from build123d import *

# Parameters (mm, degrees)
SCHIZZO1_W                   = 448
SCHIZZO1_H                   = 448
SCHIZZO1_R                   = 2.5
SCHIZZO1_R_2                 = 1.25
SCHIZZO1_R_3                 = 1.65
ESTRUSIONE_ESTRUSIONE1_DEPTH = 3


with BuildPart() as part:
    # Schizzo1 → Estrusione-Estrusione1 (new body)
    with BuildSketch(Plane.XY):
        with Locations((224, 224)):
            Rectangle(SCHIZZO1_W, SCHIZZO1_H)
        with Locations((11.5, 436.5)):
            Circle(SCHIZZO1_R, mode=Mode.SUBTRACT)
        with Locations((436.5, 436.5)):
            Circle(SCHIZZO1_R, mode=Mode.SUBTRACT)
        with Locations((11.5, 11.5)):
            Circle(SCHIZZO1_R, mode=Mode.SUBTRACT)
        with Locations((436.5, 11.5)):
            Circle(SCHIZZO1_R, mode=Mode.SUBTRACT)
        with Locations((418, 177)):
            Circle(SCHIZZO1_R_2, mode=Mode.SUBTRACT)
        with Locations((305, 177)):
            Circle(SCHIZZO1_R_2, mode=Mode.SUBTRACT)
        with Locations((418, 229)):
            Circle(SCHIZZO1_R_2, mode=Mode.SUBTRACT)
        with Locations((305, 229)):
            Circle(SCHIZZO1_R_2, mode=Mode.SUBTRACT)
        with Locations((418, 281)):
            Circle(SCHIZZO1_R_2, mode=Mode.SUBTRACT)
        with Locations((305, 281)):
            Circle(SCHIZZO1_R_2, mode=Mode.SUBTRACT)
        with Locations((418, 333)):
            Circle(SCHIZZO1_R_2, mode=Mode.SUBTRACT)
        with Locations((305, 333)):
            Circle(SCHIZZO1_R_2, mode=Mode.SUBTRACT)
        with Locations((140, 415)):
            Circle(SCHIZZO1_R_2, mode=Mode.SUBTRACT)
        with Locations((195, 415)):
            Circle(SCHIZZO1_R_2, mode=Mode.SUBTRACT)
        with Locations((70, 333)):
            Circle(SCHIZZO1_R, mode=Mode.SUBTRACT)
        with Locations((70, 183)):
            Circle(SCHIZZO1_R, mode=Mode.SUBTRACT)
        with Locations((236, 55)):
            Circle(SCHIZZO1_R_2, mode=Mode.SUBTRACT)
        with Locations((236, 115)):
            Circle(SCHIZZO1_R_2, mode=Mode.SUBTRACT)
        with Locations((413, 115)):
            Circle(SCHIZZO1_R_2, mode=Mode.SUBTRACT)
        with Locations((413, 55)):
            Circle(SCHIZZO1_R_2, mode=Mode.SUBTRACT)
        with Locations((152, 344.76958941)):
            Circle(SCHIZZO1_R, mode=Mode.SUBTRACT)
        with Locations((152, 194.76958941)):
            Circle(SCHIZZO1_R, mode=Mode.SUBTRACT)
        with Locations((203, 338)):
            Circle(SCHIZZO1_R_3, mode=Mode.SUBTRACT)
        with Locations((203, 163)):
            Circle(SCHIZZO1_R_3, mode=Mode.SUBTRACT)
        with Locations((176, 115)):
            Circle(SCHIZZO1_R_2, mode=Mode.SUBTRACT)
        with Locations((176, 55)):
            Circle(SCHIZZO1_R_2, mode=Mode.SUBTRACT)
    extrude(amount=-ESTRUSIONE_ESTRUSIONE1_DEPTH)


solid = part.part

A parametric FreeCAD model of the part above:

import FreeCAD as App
import Part
import Sketcher

doc = App.newDocument("Part")
body = doc.addObject("PartDesign::Body", "Body")

# Sketch on XY plane
sketch1 = doc.addObject("Sketcher::SketchObject", "Sketch")
body.addObject(sketch1)
sketch1.AttachmentSupport = (doc.XY_Plane, [""])
sketch1.MapMode = "FlatFace"
sketch1.addGeometry([
    Part.LineSegment(App.Vector(0, 448, 0), App.Vector(0, 0, 0)),  # 0
    Part.LineSegment(App.Vector(0, 0, 0), App.Vector(448, 0, 0)),  # 1
    Part.LineSegment(App.Vector(448, 0, 0), App.Vector(448, 448, 0)),  # 2
    Part.LineSegment(App.Vector(448, 448, 0), App.Vector(0, 448, 0)),  # 3
    Part.Circle(App.Vector(11.5, 11.5, 0), App.Vector(0, 0, 1), 2.5),  # 4
    Part.Circle(App.Vector(176, 55, 0), App.Vector(0, 0, 1), 1.2),  # 5
    Part.Circle(App.Vector(176, 115, 0), App.Vector(0, 0, 1), 1.2),  # 6
    Part.Circle(App.Vector(70, 183, 0), App.Vector(0, 0, 1), 2.5),  # 7
    Part.Circle(App.Vector(203, 163, 0), App.Vector(0, 0, 1), 1.6),  # 8
    Part.Circle(App.Vector(152, 194.8, 0), App.Vector(0, 0, 1), 2.5),  # 9
    Part.Circle(App.Vector(236, 55, 0), App.Vector(0, 0, 1), 1.2),  # 10
    Part.Circle(App.Vector(236, 115, 0), App.Vector(0, 0, 1), 1.2),  # 11
    Part.Circle(App.Vector(436.5, 11.5, 0), App.Vector(0, 0, 1), 2.5),  # 12
    Part.Circle(App.Vector(413, 55, 0), App.Vector(0, 0, 1), 1.2),  # 13
    Part.Circle(App.Vector(413, 115, 0), App.Vector(0, 0, 1), 1.2),  # 14
    Part.Circle(App.Vector(305, 177, 0), App.Vector(0, 0, 1), 1.2),  # 15
    Part.Circle(App.Vector(418, 177, 0), App.Vector(0, 0, 1), 1.2),  # 16
    Part.Circle(App.Vector(70, 333, 0), App.Vector(0, 0, 1), 2.5),  # 17
    Part.Circle(App.Vector(11.5, 436.5, 0), App.Vector(0, 0, 1), 2.5),  # 18
    Part.Circle(App.Vector(152, 344.8, 0), App.Vector(0, 0, 1), 2.5),  # 19
    Part.Circle(App.Vector(203, 338, 0), App.Vector(0, 0, 1), 1.6),  # 20
    Part.Circle(App.Vector(140, 415, 0), App.Vector(0, 0, 1), 1.2),  # 21
    Part.Circle(App.Vector(195, 415, 0), App.Vector(0, 0, 1), 1.2),  # 22
    Part.Circle(App.Vector(305, 229, 0), App.Vector(0, 0, 1), 1.2),  # 23
    Part.Circle(App.Vector(305, 281, 0), App.Vector(0, 0, 1), 1.2),  # 24
    Part.Circle(App.Vector(418, 229, 0), App.Vector(0, 0, 1), 1.2),  # 25
    Part.Circle(App.Vector(418, 281, 0), App.Vector(0, 0, 1), 1.2),  # 26
    Part.Circle(App.Vector(305, 333, 0), App.Vector(0, 0, 1), 1.2),  # 27
    Part.Circle(App.Vector(418, 333, 0), App.Vector(0, 0, 1), 1.2),  # 28
    Part.Circle(App.Vector(436.5, 436.5, 0), App.Vector(0, 0, 1), 2.5),  # 29
], False)
sketch1.addConstraint([
    Sketcher.Constraint("Coincident", 0, 2, 1, 1),
    Sketcher.Constraint("Coincident", 1, 2, 2, 1),
    Sketcher.Constraint("Coincident", 2, 2, 3, 1),
    Sketcher.Constraint("Coincident", 3, 2, 0, 1),
    Sketcher.Constraint("Vertical", 0),
    Sketcher.Constraint("Horizontal", 1),
    Sketcher.Constraint("Vertical", 2),
    Sketcher.Constraint("Horizontal", 3),
    Sketcher.Constraint("Coincident", 0, 2, -1, 1),
    Sketcher.Constraint("Equal", 5, 6),
    Sketcher.Constraint("Equal", 4, 7),
    Sketcher.Constraint("Equal", 7, 9),
    Sketcher.Constraint("Equal", 6, 10),
    Sketcher.Constraint("Equal", 10, 11),
    Sketcher.Constraint("Equal", 9, 12),
    Sketcher.Constraint("Equal", 11, 13),
    Sketcher.Constraint("Equal", 13, 14),
    Sketcher.Constraint("Equal", 14, 15),
    Sketcher.Constraint("Equal", 15, 16),
    Sketcher.Constraint("Equal", 12, 17),
    Sketcher.Constraint("Equal", 17, 18),
    Sketcher.Constraint("Equal", 18, 19),
    Sketcher.Constraint("Equal", 8, 20),
    Sketcher.Constraint("Equal", 16, 21),
    Sketcher.Constraint("Equal", 21, 22),
    Sketcher.Constraint("Equal", 22, 23),
    Sketcher.Constraint("Equal", 23, 24),
    Sketcher.Constraint("Equal", 24, 25),
    Sketcher.Constraint("Equal", 25, 26),
    Sketcher.Constraint("Equal", 26, 27),
    Sketcher.Constraint("Equal", 27, 28),
    Sketcher.Constraint("Equal", 19, 29),
    Sketcher.Constraint("Horizontal", 5, 3, 10, 3),
    Sketcher.Constraint("Horizontal", 6, 3, 11, 3),
    Sketcher.Constraint("Horizontal", 4, 3, 12, 3),
    Sketcher.Constraint("Horizontal", 10, 3, 13, 3),
    Sketcher.Constraint("Horizontal", 11, 3, 14, 3),
    Sketcher.Constraint("Horizontal", 15, 3, 16, 3),
    Sketcher.Constraint("Horizontal", 21, 3, 22, 3),
    Sketcher.Constraint("Horizontal", 23, 3, 25, 3),
    Sketcher.Constraint("Horizontal", 24, 3, 26, 3),
    Sketcher.Constraint("Horizontal", 17, 3, 27, 3),
    Sketcher.Constraint("Horizontal", 27, 3, 28, 3),
    Sketcher.Constraint("Horizontal", 18, 3, 29, 3),
    Sketcher.Constraint("Vertical", 5, 3, 6, 3),
    Sketcher.Constraint("Vertical", 10, 3, 11, 3),
    Sketcher.Constraint("Vertical", 13, 3, 14, 3),
    Sketcher.Constraint("Vertical", 7, 3, 17, 3),
    Sketcher.Constraint("Vertical", 4, 3, 18, 3),
    Sketcher.Constraint("Vertical", 9, 3, 19, 3),
    Sketcher.Constraint("Vertical", 8, 3, 20, 3),
    Sketcher.Constraint("Vertical", 15, 3, 23, 3),
    Sketcher.Constraint("Vertical", 23, 3, 24, 3),
    Sketcher.Constraint("Vertical", 16, 3, 25, 3),
    Sketcher.Constraint("Vertical", 25, 3, 26, 3),
    Sketcher.Constraint("Vertical", 24, 3, 27, 3),
    Sketcher.Constraint("Vertical", 26, 3, 28, 3),
    Sketcher.Constraint("Vertical", 12, 3, 29, 3),
    Sketcher.Constraint("Equal", 3, 0),
    Sketcher.Constraint("Diameter", 4, 5.0),
    Sketcher.Constraint("Diameter", 5, 2.5),
    Sketcher.Constraint("Diameter", 8, 3.3),
    Sketcher.Constraint("DistanceX", 1, 1, 1, 2, 448.0),
    Sketcher.Constraint("DistanceX", -1, 1, 5, 3, 176.0),
    Sketcher.Constraint("DistanceY", -1, 1, 5, 3, 55.0),
    Sketcher.Constraint("DistanceY", -1, 1, 6, 3, 115.0),
    Sketcher.Constraint("DistanceX", -1, 1, 7, 3, 70.0),
    Sketcher.Constraint("DistanceY", -1, 1, 7, 3, 183.0),
    Sketcher.Constraint("DistanceX", -1, 1, 8, 3, 203.0),
    Sketcher.Constraint("DistanceY", -1, 1, 8, 3, 163.0),
    Sketcher.Constraint("DistanceX", -1, 1, 9, 3, 152.0),
    Sketcher.Constraint("DistanceX", -1, 1, 10, 3, 236.0),
    Sketcher.Constraint("DistanceX", -1, 1, 13, 3, 413.0),
    Sketcher.Constraint("DistanceX", -1, 1, 15, 3, 305.0),
    Sketcher.Constraint("DistanceY", -1, 1, 15, 3, 177.0),
    Sketcher.Constraint("DistanceX", -1, 1, 16, 3, 418.0),
    Sketcher.Constraint("DistanceY", -1, 1, 17, 3, 333.0),
    Sketcher.Constraint("DistanceY", -1, 1, 20, 3, 338.0),
    Sketcher.Constraint("DistanceX", -1, 1, 21, 3, 140.0),
    Sketcher.Constraint("DistanceY", -1, 1, 21, 3, 415.0),
    Sketcher.Constraint("DistanceX", -1, 1, 22, 3, 195.0),
    Sketcher.Constraint("DistanceY", -1, 1, 23, 3, 229.0),
    Sketcher.Constraint("DistanceY", -1, 1, 24, 3, 281.0),
    Sketcher.Constraint("DistanceY", 9, 3, 19, 3, 150.0),
    Sketcher.Constraint("DistanceX", -1, 1, 4, 3, 11.5),
    Sketcher.Constraint("DistanceY", -1, 1, 4, 3, 11.5),
    Sketcher.Constraint("DistanceX", -1, 1, 12, 3, 436.5),
    Sketcher.Constraint("DistanceY", -1, 1, 18, 3, 436.5),
    Sketcher.Constraint("DistanceY", -1, 1, 9, 3, 194.769589),
])
pad1 = doc.addObject("PartDesign::Pad", "Pad")
body.addObject(pad1)
pad1.Profile = sketch1
pad1.Length = 3
pad1.Reversed = True

doc.recompute()
